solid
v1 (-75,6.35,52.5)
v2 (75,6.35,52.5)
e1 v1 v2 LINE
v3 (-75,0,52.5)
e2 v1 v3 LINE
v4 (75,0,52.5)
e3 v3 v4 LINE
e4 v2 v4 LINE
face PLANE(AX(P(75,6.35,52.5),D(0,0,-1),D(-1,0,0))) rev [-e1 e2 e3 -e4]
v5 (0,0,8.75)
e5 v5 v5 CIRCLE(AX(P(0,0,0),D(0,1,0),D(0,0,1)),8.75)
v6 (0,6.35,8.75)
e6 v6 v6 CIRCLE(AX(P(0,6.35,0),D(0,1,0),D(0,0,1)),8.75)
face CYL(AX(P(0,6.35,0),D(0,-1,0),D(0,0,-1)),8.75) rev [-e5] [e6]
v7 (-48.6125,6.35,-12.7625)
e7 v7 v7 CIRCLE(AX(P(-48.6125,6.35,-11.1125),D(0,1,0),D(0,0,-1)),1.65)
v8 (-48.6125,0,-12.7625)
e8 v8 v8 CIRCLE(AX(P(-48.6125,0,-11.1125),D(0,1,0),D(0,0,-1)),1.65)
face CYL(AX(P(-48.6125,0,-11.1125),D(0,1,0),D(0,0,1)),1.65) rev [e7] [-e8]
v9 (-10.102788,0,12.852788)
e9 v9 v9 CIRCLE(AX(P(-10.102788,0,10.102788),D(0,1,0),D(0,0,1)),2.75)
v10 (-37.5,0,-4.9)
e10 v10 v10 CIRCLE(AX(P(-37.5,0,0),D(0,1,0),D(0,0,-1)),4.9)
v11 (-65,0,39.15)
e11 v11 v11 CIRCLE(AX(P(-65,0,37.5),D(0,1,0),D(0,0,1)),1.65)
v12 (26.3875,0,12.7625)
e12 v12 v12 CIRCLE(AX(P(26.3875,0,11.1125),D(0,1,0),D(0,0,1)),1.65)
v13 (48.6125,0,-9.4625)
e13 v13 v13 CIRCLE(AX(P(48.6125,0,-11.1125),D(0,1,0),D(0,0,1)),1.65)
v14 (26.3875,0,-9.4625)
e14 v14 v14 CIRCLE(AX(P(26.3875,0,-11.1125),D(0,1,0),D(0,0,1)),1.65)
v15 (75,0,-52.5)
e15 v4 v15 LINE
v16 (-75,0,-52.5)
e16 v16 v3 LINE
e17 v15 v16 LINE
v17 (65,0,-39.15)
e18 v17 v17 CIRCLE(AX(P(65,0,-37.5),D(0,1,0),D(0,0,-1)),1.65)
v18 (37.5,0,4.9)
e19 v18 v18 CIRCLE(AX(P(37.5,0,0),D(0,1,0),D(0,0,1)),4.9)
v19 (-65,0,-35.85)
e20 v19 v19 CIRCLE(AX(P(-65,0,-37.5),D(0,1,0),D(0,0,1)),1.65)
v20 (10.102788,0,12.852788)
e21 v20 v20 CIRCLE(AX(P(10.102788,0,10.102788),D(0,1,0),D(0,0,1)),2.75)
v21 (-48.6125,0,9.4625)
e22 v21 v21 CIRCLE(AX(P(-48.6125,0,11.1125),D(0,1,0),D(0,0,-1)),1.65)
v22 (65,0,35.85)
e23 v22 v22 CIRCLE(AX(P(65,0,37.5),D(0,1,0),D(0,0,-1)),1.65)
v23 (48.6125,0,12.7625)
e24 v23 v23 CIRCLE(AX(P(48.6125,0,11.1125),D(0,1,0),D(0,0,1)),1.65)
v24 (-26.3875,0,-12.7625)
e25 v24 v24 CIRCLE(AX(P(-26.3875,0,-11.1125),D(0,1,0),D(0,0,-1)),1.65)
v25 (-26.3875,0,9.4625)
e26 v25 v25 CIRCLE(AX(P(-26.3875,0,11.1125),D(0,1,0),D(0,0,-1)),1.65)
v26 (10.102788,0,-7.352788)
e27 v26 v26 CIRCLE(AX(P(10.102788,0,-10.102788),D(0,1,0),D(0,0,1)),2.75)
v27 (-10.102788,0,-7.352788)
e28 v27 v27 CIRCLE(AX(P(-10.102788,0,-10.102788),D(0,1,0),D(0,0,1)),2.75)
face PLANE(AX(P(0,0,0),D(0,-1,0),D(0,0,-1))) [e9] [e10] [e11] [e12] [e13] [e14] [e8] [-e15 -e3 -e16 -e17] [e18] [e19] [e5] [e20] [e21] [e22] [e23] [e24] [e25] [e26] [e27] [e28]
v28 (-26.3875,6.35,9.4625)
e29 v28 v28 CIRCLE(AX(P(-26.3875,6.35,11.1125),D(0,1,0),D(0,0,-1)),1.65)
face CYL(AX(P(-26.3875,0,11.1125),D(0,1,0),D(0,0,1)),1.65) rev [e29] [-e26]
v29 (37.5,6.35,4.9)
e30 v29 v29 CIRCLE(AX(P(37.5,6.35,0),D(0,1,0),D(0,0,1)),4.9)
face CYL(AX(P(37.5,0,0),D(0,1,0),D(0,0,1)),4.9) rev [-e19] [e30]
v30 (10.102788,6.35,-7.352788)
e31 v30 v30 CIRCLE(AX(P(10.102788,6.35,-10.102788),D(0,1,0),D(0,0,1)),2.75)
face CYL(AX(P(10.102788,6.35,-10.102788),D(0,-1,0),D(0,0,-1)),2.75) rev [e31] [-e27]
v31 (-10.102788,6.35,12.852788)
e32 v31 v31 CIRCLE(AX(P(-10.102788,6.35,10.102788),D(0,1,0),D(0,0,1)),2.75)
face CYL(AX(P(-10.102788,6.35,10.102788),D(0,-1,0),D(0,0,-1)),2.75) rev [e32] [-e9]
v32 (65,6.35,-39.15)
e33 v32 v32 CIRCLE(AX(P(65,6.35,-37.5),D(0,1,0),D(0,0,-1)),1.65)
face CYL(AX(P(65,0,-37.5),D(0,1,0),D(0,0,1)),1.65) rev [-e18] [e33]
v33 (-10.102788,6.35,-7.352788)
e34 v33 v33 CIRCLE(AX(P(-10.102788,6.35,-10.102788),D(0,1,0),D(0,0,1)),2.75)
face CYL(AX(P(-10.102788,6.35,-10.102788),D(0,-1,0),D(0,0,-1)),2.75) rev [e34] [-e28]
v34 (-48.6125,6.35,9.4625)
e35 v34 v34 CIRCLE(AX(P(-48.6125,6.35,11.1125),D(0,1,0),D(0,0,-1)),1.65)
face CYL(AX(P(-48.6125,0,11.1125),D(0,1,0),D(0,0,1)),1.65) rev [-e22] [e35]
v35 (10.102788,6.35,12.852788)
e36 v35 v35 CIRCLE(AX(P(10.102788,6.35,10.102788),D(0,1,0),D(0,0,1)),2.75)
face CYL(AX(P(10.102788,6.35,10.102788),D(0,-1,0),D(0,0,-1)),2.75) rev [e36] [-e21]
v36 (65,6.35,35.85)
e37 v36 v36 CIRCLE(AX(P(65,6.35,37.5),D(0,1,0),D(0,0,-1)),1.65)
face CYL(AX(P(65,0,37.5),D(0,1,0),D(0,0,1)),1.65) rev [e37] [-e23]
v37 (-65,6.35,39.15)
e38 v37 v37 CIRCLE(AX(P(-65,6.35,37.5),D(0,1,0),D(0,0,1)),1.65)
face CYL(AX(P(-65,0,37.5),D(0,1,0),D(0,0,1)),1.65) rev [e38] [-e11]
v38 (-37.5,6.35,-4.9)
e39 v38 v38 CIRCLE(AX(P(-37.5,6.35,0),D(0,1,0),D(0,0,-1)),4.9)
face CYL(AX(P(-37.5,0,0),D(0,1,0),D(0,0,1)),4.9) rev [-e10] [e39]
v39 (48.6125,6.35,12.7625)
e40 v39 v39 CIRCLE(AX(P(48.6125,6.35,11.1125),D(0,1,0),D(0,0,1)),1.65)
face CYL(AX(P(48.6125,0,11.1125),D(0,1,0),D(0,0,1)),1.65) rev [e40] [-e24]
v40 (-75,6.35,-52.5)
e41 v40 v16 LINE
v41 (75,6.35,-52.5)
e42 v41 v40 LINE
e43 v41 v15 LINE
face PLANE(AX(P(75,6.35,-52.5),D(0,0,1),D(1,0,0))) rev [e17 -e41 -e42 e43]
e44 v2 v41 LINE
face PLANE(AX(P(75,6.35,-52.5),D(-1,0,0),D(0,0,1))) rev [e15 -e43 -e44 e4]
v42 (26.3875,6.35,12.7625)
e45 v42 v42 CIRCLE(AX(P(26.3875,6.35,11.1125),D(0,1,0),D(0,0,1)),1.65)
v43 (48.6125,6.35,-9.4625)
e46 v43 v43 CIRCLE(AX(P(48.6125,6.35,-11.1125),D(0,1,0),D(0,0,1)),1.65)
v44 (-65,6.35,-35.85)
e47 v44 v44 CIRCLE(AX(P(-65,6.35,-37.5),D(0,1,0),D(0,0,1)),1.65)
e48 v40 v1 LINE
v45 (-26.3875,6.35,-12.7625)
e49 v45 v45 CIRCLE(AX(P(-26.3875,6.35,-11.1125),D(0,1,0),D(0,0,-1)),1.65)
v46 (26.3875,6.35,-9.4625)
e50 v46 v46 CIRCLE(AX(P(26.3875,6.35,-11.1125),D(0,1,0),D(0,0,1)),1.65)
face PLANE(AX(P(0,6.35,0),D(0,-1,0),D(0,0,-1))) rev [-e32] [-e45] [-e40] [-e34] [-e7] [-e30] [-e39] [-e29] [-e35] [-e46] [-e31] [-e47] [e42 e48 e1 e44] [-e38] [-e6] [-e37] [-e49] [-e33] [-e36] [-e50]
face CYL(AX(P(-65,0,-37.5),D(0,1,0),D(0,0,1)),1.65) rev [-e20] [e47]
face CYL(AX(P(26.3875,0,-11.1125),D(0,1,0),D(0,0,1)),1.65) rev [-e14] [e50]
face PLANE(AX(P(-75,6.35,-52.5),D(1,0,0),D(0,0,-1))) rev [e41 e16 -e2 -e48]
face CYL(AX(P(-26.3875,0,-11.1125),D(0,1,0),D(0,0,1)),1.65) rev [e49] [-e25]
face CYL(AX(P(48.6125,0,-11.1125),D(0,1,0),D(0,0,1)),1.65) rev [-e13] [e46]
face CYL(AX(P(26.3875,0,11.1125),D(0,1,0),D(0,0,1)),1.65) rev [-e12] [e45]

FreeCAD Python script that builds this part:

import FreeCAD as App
import Part
import Sketcher
Q = App.Units.Quantity

doc = App.newDocument("Part")
body = doc.addObject("PartDesign::Body", "Body")

sketch1 = body.newObject("Sketcher::SketchObject", "Sketch")
sketch1.AttachmentSupport = (doc.getObject("XZ_Plane"), [""])
sketch1.MapMode = "FlatFace"
sketch1.addGeometry(Part.LineSegment(App.Vector(-75, -52.5, 0), App.Vector(-75, 52.5, 0)), False)
sketch1.addGeometry(Part.LineSegment(App.Vector(-75, 52.5, 0), App.Vector(75, 52.5, 0)), False)
sketch1.addGeometry(Part.LineSegment(App.Vector(75, 52.5, 0), App.Vector(75, -52.5, 0)), False)
sketch1.addGeometry(Part.LineSegment(App.Vector(75, -52.5, 0), App.Vector(-75, -52.5, 0)), False)
sketch1.addGeometry(Part.Circle(App.Vector(-10.1, 10.1, 0), App.Vector(0, 0, 1), 2.8), False)
sketch1.addGeometry(Part.Circle(App.Vector(10.1, 10.1, 0), App.Vector(0, 0, 1), 2.8), False)
sketch1.addGeometry(Part.Circle(App.Vector(-10.1, -10.1, 0), App.Vector(0, 0, 1), 2.8), False)
sketch1.addGeometry(Part.Circle(App.Vector(0, 0, 0), App.Vector(0, 0, 1), 8.8), False)
sketch1.addGeometry(Part.Circle(App.Vector(10.1, -10.1, 0), App.Vector(0, 0, 1), 2.8), False)
sketch1.addConstraint(Sketcher.Constraint("Coincident", 0, 2, 1, 1))
sketch1.addConstraint(Sketcher.Constraint("Coincident", 1, 2, 2, 1))
sketch1.addConstraint(Sketcher.Constraint("Coincident", 2, 2, 3, 1))
sketch1.addConstraint(Sketcher.Constraint("Coincident", 3, 2, 0, 1))
sketch1.addConstraint(Sketcher.Constraint("Vertical", 0))
sketch1.addConstraint(Sketcher.Constraint("Horizontal", 1))
sketch1.addConstraint(Sketcher.Constraint("Vertical", 2))
sketch1.addConstraint(Sketcher.Constraint("Horizontal", 3))
sketch1.addConstraint(Sketcher.Constraint("Coincident", 7, 3, -1, 1))
sketch1.addConstraint(Sketcher.Constraint("Equal", 4, 5))
sketch1.addConstraint(Sketcher.Constraint("Equal", 5, 6))
sketch1.addConstraint(Sketcher.Constraint("Equal", 6, 8))
sketch1.addConstraint(Sketcher.Constraint("Symmetric", 5, 3, 6, 3, -1, 1))
sketch1.addConstraint(Sketcher.Constraint("Symmetric", 4, 3, 8, 3, -1, 1))
sketch1.addConstraint(Sketcher.Constraint("Symmetric", 0, 2, 2, 2, -1, 1))
sketch1.addConstraint(Sketcher.Constraint("Symmetric", 4, 3, 5, 3, -2))
sketch1.addConstraint(Sketcher.Constraint("Diameter", 4, Q("5.5 mm")))
sketch1.addConstraint(Sketcher.Constraint("Diameter", 7, Q("17.5 mm")))
sketch1.addConstraint(Sketcher.Constraint("DistanceX", 1, 1, 1, 2, Q("150 mm")))
sketch1.addConstraint(Sketcher.Constraint("DistanceY", 0, 1, 0, 2, Q("105 mm")))
sketch1.addConstraint(Sketcher.Constraint("DistanceX", 4, 3, -1, 1, Q("10.102788 mm")))
sketch1.addConstraint(Sketcher.Constraint("DistanceY", -1, 1, 4, 3, Q("10.102788 mm")))
pad1 = body.newObject("PartDesign::Pad", "Pad")
pad1.Profile = sketch1
pad1.Length = 6.35
pad1.Reversed = True

sketch2 = body.newObject("Sketcher::SketchObject", "Sketch001")
sketch2.AttachmentSupport = (doc.getObject("XZ_Plane"), [""])
sketch2.MapMode = "FlatFace"
sketch2.AttachmentOffset = App.Placement(App.Vector(0, 0, -6.35), App.Rotation())
sketch2.addGeometry(Part.Circle(App.Vector(37.5, 0, 0), App.Vector(0, 0, 1), 4.9), False)
sketch2.addGeometry(Part.Circle(App.Vector(26.4, -11.1, 0), App.Vector(0, 0, 1), 1.6), False)
sketch2.addGeometry(Part.Circle(App.Vector(48.6, -11.1, 0), App.Vector(0, 0, 1), 1.6), False)
sketch2.addGeometry(Part.Circle(App.Vector(48.6, 11.1, 0), App.Vector(0, 0, 1), 1.6), False)
sketch2.addGeometry(Part.Circle(App.Vector(26.4, 11.1, 0), App.Vector(0, 0, 1), 1.6), False)
sketch2.addGeometry(Part.Circle(App.Vector(-26.4, 11.1, 0), App.Vector(0, 0, 1), 1.6), False)
sketch2.addGeometry(Part.Circle(App.Vector(-48.6, 11.1, 0), App.Vector(0, 0, 1), 1.6), False)
sketch2.addGeometry(Part.Circle(App.Vector(-48.6, -11.1, 0), App.Vector(0, 0, 1), 1.6), False)
sketch2.addGeometry(Part.Circle(App.Vector(-26.4, -11.1, 0), App.Vector(0, 0, 1), 1.6), False)
sketch2.addGeometry(Part.Circle(App.Vector(-37.5, 0, 0), App.Vector(0, 0, 1), 4.9), False)
sketch2.addConstraint(Sketcher.Constraint("Equal", 1, 2))
sketch2.addConstraint(Sketcher.Constraint("Equal", 2, 3))
sketch2.addConstraint(Sketcher.Constraint("Equal", 3, 4))
sketch2.addConstraint(Sketcher.Constraint("Equal", 4, 5))
sketch2.addConstraint(Sketcher.Constraint("Equal", 5, 6))
sketch2.addConstraint(Sketcher.Constraint("Equal", 6, 7))
sketch2.addConstraint(Sketcher.Constraint("Equal", 7, 8))
sketch2.addConstraint(Sketcher.Constraint("Equal", 0, 9))
sketch2.addConstraint(Sketcher.Constraint("Symmetric", 1, 3, 5, 3, -1, 1))
sketch2.addConstraint(Sketcher.Constraint("Symmetric", 2, 3, 6, 3, -1, 1))
sketch2.addConstraint(Sketcher.Constraint("Symmetric", 3, 3, 7, 3, -1, 1))
sketch2.addConstraint(Sketcher.Constraint("Symmetric", 4, 3, 8, 3, -1, 1))
sketch2.addConstraint(Sketcher.Constraint("Symmetric", 0, 3, 9, 3, -1, 1))
sketch2.addConstraint(Sketcher.Constraint("Symmetric", 4, 3, 5, 3, -2))
sketch2.addConstraint(Sketcher.Constraint("Symmetric", 3, 3, 6, 3, -2))
sketch2.addConstraint(Sketcher.Constraint("PointOnObject", 0, 3, -1))
sketch2.addConstraint(Sketcher.Constraint("Horizontal", 1, 3, 2, 3))
sketch2.addConstraint(Sketcher.Constraint("Diameter", 0, Q("9.8 mm")))
sketch2.addConstraint(Sketcher.Constraint("Diameter", 1, Q("3.3 mm")))
sketch2.addConstraint(Sketcher.Constraint("DistanceX", 5, 3, 3, 3, Q("75 mm")))
sketch2.addConstraint(Sketcher.Constraint("DistanceX", -1, 1, 0, 3, Q("37.5 mm")))
sketch2.addConstraint(Sketcher.Constraint("DistanceX", 1, 3, 2, 3, Q("22.225 mm")))
sketch2.addConstraint(Sketcher.Constraint("DistanceY", 2, 3, 3, 3, Q("22.225 mm")))
pocket1 = body.newObject("PartDesign::Pocket", "Pocket")
pocket1.Profile = sketch2
pocket1.Type = "ThroughAll"
pocket1.Reversed = True

sketch3 = body.newObject("Sketcher::SketchObject", "Sketch002")
sketch3.AttachmentSupport = (doc.getObject("XZ_Plane"), [""])
sketch3.MapMode = "FlatFace"
sketch3.AttachmentOffset = App.Placement(App.Vector(0, 0, -6.35), App.Rotation())
sketch3.addGeometry(Part.Circle(App.Vector(-65, -37.5, 0), App.Vector(0, 0, 1), 1.6), False)
sketch3.addGeometry(Part.Circle(App.Vector(-65, 37.5, 0), App.Vector(0, 0, 1), 1.6), False)
sketch3.addGeometry(Part.Circle(App.Vector(65, 37.5, 0), App.Vector(0, 0, 1), 1.6), False)
sketch3.addGeometry(Part.Circle(App.Vector(65, -37.5, 0), App.Vector(0, 0, 1), 1.6), False)
sketch3.addConstraint(Sketcher.Constraint("Equal", 0, 1))
sketch3.addConstraint(Sketcher.Constraint("Equal", 1, 2))
sketch3.addConstraint(Sketcher.Constraint("Equal", 2, 3))
sketch3.addConstraint(Sketcher.Constraint("Symmetric", 0, 3, 2, 3, -1, 1))
sketch3.addConstraint(Sketcher.Constraint("Symmetric", 1, 3, 3, 3, -1, 1))
sketch3.addConstraint(Sketcher.Constraint("Symmetric", 1, 3, 2, 3, -2))
sketch3.addConstraint(Sketcher.Constraint("Diameter", 0, Q("3.3 mm")))
sketch3.addConstraint(Sketcher.Constraint("DistanceX", 0, 3, -1, 1, Q("65 mm")))
sketch3.addConstraint(Sketcher.Constraint("DistanceY", 0, 3, 1, 3, Q("75 mm")))
pocket2 = body.newObject("PartDesign::Pocket", "Pocket001")
pocket2.Profile = sketch3
pocket2.Type = "ThroughAll"
pocket2.Reversed = True

doc.recompute()
